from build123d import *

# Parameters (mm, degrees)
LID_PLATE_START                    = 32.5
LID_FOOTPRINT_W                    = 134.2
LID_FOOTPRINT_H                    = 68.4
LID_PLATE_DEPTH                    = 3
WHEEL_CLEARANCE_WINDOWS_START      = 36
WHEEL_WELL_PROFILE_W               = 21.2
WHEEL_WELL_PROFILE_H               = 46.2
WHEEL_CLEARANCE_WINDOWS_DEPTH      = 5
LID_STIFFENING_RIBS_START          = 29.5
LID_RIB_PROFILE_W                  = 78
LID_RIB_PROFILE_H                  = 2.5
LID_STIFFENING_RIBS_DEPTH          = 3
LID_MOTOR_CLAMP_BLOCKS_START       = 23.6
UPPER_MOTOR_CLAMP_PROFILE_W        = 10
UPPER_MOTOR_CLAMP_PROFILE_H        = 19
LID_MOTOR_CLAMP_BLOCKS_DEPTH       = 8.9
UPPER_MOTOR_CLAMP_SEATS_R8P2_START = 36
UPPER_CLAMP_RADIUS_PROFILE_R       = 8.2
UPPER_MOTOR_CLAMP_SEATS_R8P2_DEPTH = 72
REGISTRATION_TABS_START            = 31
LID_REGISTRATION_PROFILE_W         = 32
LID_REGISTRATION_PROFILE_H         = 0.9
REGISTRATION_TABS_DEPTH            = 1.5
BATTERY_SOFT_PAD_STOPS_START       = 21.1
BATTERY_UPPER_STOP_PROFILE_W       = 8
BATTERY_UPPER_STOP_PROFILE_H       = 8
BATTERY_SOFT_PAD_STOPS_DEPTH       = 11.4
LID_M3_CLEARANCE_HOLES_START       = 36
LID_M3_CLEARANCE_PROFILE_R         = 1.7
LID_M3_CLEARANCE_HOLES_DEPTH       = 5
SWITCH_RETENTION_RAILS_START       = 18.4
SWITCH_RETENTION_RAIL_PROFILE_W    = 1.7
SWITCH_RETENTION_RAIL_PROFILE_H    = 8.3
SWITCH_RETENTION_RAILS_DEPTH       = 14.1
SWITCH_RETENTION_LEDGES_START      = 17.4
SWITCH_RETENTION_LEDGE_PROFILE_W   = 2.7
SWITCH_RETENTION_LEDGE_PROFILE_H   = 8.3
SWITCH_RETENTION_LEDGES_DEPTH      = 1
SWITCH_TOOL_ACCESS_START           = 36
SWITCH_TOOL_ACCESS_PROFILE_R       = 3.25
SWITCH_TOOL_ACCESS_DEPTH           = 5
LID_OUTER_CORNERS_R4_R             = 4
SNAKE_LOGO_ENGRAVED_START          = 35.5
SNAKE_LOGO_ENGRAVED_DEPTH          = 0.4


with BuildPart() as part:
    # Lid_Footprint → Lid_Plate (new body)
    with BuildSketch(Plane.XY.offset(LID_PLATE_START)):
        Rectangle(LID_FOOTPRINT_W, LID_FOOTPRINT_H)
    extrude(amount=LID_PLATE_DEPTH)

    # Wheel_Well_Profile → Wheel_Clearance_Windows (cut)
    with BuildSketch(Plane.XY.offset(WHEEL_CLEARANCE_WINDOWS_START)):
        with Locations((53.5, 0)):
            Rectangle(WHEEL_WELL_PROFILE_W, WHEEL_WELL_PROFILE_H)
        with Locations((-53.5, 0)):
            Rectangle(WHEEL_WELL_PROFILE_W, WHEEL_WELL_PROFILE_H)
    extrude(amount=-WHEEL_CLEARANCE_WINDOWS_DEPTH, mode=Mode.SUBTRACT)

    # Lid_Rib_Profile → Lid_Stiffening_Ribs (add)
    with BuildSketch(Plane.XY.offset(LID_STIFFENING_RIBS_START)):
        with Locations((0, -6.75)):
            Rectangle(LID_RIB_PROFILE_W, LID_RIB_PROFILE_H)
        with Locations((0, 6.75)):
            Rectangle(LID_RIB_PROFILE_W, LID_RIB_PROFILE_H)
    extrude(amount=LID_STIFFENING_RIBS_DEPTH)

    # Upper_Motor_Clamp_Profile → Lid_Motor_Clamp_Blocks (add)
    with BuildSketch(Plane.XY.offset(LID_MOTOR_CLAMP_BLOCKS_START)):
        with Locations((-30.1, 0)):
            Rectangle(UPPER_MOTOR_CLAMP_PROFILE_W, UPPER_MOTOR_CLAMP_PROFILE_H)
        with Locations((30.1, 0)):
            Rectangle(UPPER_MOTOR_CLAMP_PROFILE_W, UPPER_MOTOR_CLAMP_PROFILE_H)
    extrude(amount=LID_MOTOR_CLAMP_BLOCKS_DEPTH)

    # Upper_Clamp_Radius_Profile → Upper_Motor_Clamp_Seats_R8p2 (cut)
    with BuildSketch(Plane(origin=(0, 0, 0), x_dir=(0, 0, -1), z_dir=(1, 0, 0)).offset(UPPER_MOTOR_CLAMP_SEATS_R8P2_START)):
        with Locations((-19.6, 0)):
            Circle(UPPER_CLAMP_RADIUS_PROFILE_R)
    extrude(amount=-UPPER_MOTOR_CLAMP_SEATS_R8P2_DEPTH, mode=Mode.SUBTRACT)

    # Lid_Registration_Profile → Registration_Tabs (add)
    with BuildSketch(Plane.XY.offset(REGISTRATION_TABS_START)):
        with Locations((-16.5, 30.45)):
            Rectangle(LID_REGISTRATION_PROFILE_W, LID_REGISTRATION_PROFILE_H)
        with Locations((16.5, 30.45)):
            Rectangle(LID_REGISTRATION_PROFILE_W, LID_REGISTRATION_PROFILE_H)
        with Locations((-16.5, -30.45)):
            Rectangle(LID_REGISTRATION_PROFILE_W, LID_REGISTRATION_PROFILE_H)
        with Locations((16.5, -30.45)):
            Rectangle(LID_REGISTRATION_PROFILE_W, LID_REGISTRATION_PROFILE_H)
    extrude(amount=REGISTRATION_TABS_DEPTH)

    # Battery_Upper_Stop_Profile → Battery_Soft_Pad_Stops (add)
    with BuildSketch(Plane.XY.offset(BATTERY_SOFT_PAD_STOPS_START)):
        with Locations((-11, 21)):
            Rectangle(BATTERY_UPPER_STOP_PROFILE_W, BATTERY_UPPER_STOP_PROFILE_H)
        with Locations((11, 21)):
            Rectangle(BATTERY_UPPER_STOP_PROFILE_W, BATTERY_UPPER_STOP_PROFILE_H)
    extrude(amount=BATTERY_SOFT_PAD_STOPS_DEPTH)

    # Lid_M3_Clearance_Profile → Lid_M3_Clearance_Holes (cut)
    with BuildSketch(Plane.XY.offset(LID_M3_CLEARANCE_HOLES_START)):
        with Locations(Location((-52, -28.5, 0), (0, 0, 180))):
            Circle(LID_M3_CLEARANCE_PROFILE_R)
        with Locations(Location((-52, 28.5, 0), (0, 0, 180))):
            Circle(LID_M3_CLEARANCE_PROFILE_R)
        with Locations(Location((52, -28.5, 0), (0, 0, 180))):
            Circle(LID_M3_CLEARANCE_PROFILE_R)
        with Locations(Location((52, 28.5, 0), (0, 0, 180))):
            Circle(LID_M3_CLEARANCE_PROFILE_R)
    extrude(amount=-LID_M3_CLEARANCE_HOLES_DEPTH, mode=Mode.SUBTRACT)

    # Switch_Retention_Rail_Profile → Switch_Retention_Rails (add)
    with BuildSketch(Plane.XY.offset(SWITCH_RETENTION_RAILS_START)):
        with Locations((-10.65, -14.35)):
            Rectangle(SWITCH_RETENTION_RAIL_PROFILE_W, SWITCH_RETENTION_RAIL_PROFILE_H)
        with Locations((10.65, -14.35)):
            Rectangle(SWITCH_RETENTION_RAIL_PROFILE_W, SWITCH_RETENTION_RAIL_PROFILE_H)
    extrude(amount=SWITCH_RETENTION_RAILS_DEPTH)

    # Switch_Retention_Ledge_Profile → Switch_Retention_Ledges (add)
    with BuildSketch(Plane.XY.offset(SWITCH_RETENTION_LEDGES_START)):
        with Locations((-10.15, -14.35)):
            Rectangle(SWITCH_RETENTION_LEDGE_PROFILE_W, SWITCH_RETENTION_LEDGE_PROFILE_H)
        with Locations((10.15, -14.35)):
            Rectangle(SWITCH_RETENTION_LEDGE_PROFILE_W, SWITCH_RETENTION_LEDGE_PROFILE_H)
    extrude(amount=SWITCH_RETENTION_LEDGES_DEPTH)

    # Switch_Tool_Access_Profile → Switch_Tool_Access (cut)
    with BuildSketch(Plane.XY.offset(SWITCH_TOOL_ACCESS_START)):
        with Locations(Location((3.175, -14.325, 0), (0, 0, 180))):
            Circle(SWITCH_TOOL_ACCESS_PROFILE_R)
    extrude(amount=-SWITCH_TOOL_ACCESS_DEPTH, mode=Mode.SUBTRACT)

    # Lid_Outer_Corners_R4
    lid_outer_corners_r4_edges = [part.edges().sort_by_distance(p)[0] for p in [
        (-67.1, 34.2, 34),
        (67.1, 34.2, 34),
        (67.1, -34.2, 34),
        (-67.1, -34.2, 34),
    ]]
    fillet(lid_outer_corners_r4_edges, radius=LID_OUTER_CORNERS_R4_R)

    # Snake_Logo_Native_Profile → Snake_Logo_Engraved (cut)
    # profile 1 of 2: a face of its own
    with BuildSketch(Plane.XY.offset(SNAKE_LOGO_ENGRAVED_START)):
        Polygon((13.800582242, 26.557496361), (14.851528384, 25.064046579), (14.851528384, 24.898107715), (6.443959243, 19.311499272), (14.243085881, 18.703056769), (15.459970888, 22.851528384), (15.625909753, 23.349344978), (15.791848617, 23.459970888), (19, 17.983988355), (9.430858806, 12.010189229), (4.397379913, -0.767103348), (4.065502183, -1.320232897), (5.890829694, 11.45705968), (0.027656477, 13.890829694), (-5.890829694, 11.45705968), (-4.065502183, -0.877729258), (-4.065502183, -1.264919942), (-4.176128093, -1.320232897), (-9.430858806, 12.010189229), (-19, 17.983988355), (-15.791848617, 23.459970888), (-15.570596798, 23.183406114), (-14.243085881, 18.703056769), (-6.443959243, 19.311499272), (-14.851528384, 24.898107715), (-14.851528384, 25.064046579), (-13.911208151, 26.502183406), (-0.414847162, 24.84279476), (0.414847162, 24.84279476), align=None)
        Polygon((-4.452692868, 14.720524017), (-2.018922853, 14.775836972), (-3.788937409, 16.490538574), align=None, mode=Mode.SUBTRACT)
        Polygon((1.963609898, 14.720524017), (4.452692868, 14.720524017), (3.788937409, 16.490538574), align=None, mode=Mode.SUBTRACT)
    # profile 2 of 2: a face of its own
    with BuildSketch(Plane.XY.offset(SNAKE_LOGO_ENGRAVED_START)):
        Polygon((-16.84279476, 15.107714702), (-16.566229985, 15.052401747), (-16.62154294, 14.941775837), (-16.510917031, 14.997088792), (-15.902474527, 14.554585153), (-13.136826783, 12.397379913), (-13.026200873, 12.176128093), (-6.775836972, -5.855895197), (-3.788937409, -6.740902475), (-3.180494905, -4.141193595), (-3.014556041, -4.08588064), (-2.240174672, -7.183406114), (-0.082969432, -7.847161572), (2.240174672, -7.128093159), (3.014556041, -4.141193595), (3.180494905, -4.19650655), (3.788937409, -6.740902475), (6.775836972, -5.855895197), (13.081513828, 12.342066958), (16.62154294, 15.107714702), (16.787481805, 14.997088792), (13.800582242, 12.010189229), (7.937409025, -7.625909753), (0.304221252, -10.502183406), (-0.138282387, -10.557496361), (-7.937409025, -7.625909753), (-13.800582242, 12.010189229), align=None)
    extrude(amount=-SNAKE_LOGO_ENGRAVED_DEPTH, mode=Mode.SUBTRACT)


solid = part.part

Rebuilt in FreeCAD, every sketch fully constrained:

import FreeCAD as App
import Part
import Sketcher
from FreeCAD import Vector
Q = App.Units.Quantity


def edges_at(feature, points):
    """Names of the edges that pass closest to the given points."""
    edges = feature.Shape.Edges
    near = lambda p: min(range(len(edges)), key=lambda i: edges[i].distToShape(Part.Vertex(*p))[0])
    return sorted({f"Edge{near(p) + 1}" for p in points})


def add_polygon(sketch, points):
    """Adds a closed chain of lines whose ends are joined by coincident constraints."""
    first, n = sketch.GeometryCount, len(points)
    for a, b in zip(points, points[1:] + points[:1]):
        sketch.addGeometry(Part.LineSegment(App.Vector(*a, 0), App.Vector(*b, 0)), False)
    for i in range(n):
        sketch.addConstraint(Sketcher.Constraint("Coincident", first + i, 2, first + (i + 1) % n, 1))

doc = App.newDocument("Part")
body = doc.addObject("PartDesign::Body", "Body")

# Sketch on XY plane
sketch1 = doc.addObject("Sketcher::SketchObject", "Sketch")
body.addObject(sketch1)
sketch1.AttachmentSupport = (doc.XY_Plane, [""])
sketch1.MapMode = "FlatFace"
sketch1.AttachmentOffset = App.Placement(Vector(0, 0, 32.5), App.Rotation())
add_polygon(sketch1, [(-67, 34), (-67, -34), (67, -34), (67, 34)])  # lines 0-3
sketch1.addConstraint(Sketcher.Constraint("Vertical", 0))
sketch1.addConstraint(Sketcher.Constraint("Horizontal", 1))
sketch1.addConstraint(Sketcher.Constraint("Vertical", 2))
sketch1.addConstraint(Sketcher.Constraint("Horizontal", 3))
sketch1.addConstraint(Sketcher.Constraint("Symmetric", 0, 2, 2, 2, -1, 1))
sketch1.addConstraint(Sketcher.Constraint("DistanceX", 1, 1, 1, 2, 134.2))
sketch1.addConstraint(Sketcher.Constraint("DistanceY", 0, 2, 0, 1, 68.4))
pad1 = doc.addObject("PartDesign::Pad", "Pad")
body.addObject(pad1)
pad1.Profile = sketch1
pad1.Length = 3

# Sketch on XY plane
sketch2 = doc.addObject("Sketcher::SketchObject", "Sketch001")
body.addObject(sketch2)
sketch2.AttachmentSupport = (doc.XY_Plane, [""])
sketch2.MapMode = "FlatFace"
sketch2.AttachmentOffset = App.Placement(Vector(0, 0, 36), App.Rotation())
add_polygon(sketch2, [(43, 23), (43, -23), (64, -23), (64, 23)])  # lines 0-3
add_polygon(sketch2, [(-64, 23), (-64, -23), (-43, -23), (-43, 23)])  # lines 4-7
sketch2.addConstraint(Sketcher.Constraint("Vertical", 0))
sketch2.addConstraint(Sketcher.Constraint("Horizontal", 1))
sketch2.addConstraint(Sketcher.Constraint("Vertical", 2))
sketch2.addConstraint(Sketcher.Constraint("Horizontal", 3))
sketch2.addConstraint(Sketcher.Constraint("Vertical", 4))
sketch2.addConstraint(Sketcher.Constraint("Horizontal", 5))
sketch2.addConstraint(Sketcher.Constraint("Vertical", 6))
sketch2.addConstraint(Sketcher.Constraint("Horizontal", 7))
sketch2.addConstraint(Sketcher.Constraint("Symmetric", 2, 2, 4, 2, -1, 1))
sketch2.addConstraint(Sketcher.Constraint("Symmetric", 0, 2, 6, 2, -1, 1))
sketch2.addConstraint(Sketcher.Constraint("Horizontal", 1, 2, 4, 2))
sketch2.addConstraint(Sketcher.Constraint("DistanceX", 1, 1, 1, 2, 21.2))
sketch2.addConstraint(Sketcher.Constraint("DistanceY", 0, 2, 0, 1, 46.2))
sketch2.addConstraint(Sketcher.Constraint("DistanceX", 4, 2, 0, 2, 107.0))
pocket1 = doc.addObject("PartDesign::Pocket", "Pocket")
body.addObject(pocket1)
pocket1.Profile = sketch2
pocket1.Length = 5

# Sketch on XY plane
sketch3 = doc.addObject("Sketcher::SketchObject", "Sketch002")
body.addObject(sketch3)
sketch3.AttachmentSupport = (doc.XY_Plane, [""])
sketch3.MapMode = "FlatFace"
sketch3.AttachmentOffset = App.Placement(Vector(0, 0, 29.5), App.Rotation())
add_polygon(sketch3, [(-39, -5.5), (-39, -8), (39, -8), (39, -5.5)])  # lines 0-3
add_polygon(sketch3, [(-39, 8), (-39, 5.5), (39, 5.5), (39, 8)])  # lines 4-7
sketch3.addConstraint(Sketcher.Constraint("Vertical", 0))
sketch3.addConstraint(Sketcher.Constraint("Horizontal", 1))
sketch3.addConstraint(Sketcher.Constraint("Vertical", 2))
sketch3.addConstraint(Sketcher.Constraint("Horizontal", 3))
sketch3.addConstraint(Sketcher.Constraint("Vertical", 4))
sketch3.addConstraint(Sketcher.Constraint("Horizontal", 5))
sketch3.addConstraint(Sketcher.Constraint("Vertical", 6))
sketch3.addConstraint(Sketcher.Constraint("Horizontal", 7))
sketch3.addConstraint(Sketcher.Constraint("Symmetric", 2, 2, 4, 2, -1, 1))
sketch3.addConstraint(Sketcher.Constraint("Symmetric", 0, 2, 6, 2, -1, 1))
sketch3.addConstraint(Sketcher.Constraint("Vertical", 3, 2, 4, 2))
sketch3.addConstraint(Sketcher.Constraint("DistanceX", 1, 1, 1, 2, 78.0))
sketch3.addConstraint(Sketcher.Constraint("DistanceY", 0, 2, 0, 1, 2.5))
sketch3.addConstraint(Sketcher.Constraint("DistanceY", 0, 2, -1, 1, 8.0))
pad2 = doc.addObject("PartDesign::Pad", "Pad001")
body.addObject(pad2)
pad2.Profile = sketch3
pad2.Length = 3

# Sketch on XY plane
sketch4 = doc.addObject("Sketcher::SketchObject", "Sketch003")
body.addObject(sketch4)
sketch4.AttachmentSupport = (doc.XY_Plane, [""])
sketch4.MapMode = "FlatFace"
sketch4.AttachmentOffset = App.Placement(Vector(0, 0, 23.6), App.Rotation())
add_polygon(sketch4, [(-35, 10), (-35, -10), (-25, -10), (-25, 10)])  # lines 0-3
add_polygon(sketch4, [(25, 10), (25, -10), (35, -10), (35, 10)])  # lines 4-7
sketch4.addConstraint(Sketcher.Constraint("Vertical", 0))
sketch4.addConstraint(Sketcher.Constraint("Horizontal", 1))
sketch4.addConstraint(Sketcher.Constraint("Vertical", 2))
sketch4.addConstraint(Sketcher.Constraint("Horizontal", 3))
sketch4.addConstraint(Sketcher.Constraint("Vertical", 4))
sketch4.addConstraint(Sketcher.Constraint("Horizontal", 5))
sketch4.addConstraint(Sketcher.Constraint("Vertical", 6))
sketch4.addConstraint(Sketcher.Constraint("Horizontal", 7))
sketch4.addConstraint(Sketcher.Constraint("Symmetric", 2, 2, 4, 2, -1, 1))
sketch4.addConstraint(Sketcher.Constraint("Symmetric", 0, 2, 6, 2, -1, 1))
sketch4.addConstraint(Sketcher.Constraint("Horizontal", 1, 2, 4, 2))
sketch4.addConstraint(Sketcher.Constraint("DistanceX", 1, 1, 1, 2, 10.0))
sketch4.addConstraint(Sketcher.Constraint("DistanceY", 0, 2, 0, 1, 19.0))
sketch4.addConstraint(Sketcher.Constraint("DistanceX", 0, 2, -1, 1, 35.1))
pad3 = doc.addObject("PartDesign::Pad", "Pad002")
body.addObject(pad3)
pad3.Profile = sketch4
pad3.Length = 8.9

# Sketch on YZ plane
sketch5 = doc.addObject("Sketcher::SketchObject", "Sketch004")
body.addObject(sketch5)
sketch5.AttachmentSupport = (doc.YZ_Plane, [""])
sketch5.MapMode = "FlatFace"
sketch5.AttachmentOffset = App.Placement(Vector(0, 0, 36), App.Rotation())
sketch5.addGeometry(Part.Circle(Vector(0, 20, 0), Vector(0, 0, 1), 8), False)
sketch5.addConstraint(Sketcher.Constraint("PointOnObject", 0, 3, -2))
sketch5.addConstraint(Sketcher.Constraint("Diameter", 0, 16.4))
sketch5.addConstraint(Sketcher.Constraint("DistanceY", -1, 1, 0, 3, 19.6))
pocket2 = doc.addObject("PartDesign::Pocket", "Pocket001")
body.addObject(pocket2)
pocket2.Profile = sketch5
pocket2.Length = 72

# Sketch on XY plane
sketch6 = doc.addObject("Sketcher::SketchObject", "Sketch005")
body.addObject(sketch6)
sketch6.AttachmentSupport = (doc.XY_Plane, [""])
sketch6.MapMode = "FlatFace"
sketch6.AttachmentOffset = App.Placement(Vector(0, 0, 31), App.Rotation())
add_polygon(sketch6, [(-32.5, 30.9), (-32.5, 30), (-0.5, 30), (-0.5, 30.9)])  # lines 0-3
add_polygon(sketch6, [(0.5, 30.9), (0.5, 30), (32.5, 30), (32.5, 30.9)])  # lines 4-7
add_polygon(sketch6, [(-32.5, -30), (-32.5, -30.9), (-0.5, -30.9), (-0.5, -30)])  # lines 8-11
add_polygon(sketch6, [(0.5, -30), (0.5, -30.9), (32.5, -30.9), (32.5, -30)])  # lines 12-15
sketch6.addConstraint(Sketcher.Constraint("Vertical", 0))
sketch6.addConstraint(Sketcher.Constraint("Horizontal", 1))
sketch6.addConstraint(Sketcher.Constraint("Vertical", 2))
sketch6.addConstraint(Sketcher.Constraint("Horizontal", 3))
sketch6.addConstraint(Sketcher.Constraint("Vertical", 4))
sketch6.addConstraint(Sketcher.Constraint("Horizontal", 5))
sketch6.addConstraint(Sketcher.Constraint("Vertical", 6))
sketch6.addConstraint(Sketcher.Constraint("Horizontal", 7))
sketch6.addConstraint(Sketcher.Constraint("Vertical", 8))
sketch6.addConstraint(Sketcher.Constraint("Horizontal", 9))
sketch6.addConstraint(Sketcher.Constraint("Vertical", 10))
sketch6.addConstraint(Sketcher.Constraint("Horizontal", 11))
sketch6.addConstraint(Sketcher.Constraint("Vertical", 12))
sketch6.addConstraint(Sketcher.Constraint("Horizontal", 13))
sketch6.addConstraint(Sketcher.Constraint("Vertical", 14))
sketch6.addConstraint(Sketcher.Constraint("Horizontal", 15))
sketch6.addConstraint(Sketcher.Constraint("Symmetric", 6, 2, 8, 2, -1, 1))
sketch6.addConstraint(Sketcher.Constraint("Symmetric", 4, 2, 10, 2, -1, 1))
sketch6.addConstraint(Sketcher.Constraint("Symmetric", 2, 2, 12, 2, -1, 1))
sketch6.addConstraint(Sketcher.Constraint("Symmetric", 0, 2, 14, 2, -1, 1))
sketch6.addConstraint(Sketcher.Constraint("Symmetric", 1, 2, 4, 2, -2))
sketch6.addConstraint(Sketcher.Constraint("Symmetric", 3, 2, 6, 2, -2))
sketch6.addConstraint(Sketcher.Constraint("DistanceX", 1, 1, 1, 2, 32.0))
sketch6.addConstraint(Sketcher.Constraint("DistanceY", 0, 2, 0, 1, 0.9))
sketch6.addConstraint(Sketcher.Constraint("DistanceY", -1, 1, 0, 2, 30.0))
sketch6.addConstraint(Sketcher.Constraint("DistanceX", 1, 2, 4, 2, 1.0))
pad4 = doc.addObject("PartDesign::Pad", "Pad003")
body.addObject(pad4)
pad4.Profile = sketch6
pad4.Length = 1.5

# Sketch on XY plane
sketch7 = doc.addObject("Sketcher::SketchObject", "Sketch006")
body.addObject(sketch7)
sketch7.AttachmentSupport = (doc.XY_Plane, [""])
sketch7.MapMode = "FlatFace"
sketch7.AttachmentOffset = App.Placement(Vector(0, 0, 21.1), App.Rotation())
add_polygon(sketch7, [(-15, 25), (-15, 17), (-7, 17), (-7, 25)])  # lines 0-3
add_polygon(sketch7, [(7, 25), (7, 17), (15, 17), (15, 25)])  # lines 4-7
sketch7.addConstraint(Sketcher.Constraint("Vertical", 0))
sketch7.addConstraint(Sketcher.Constraint("Horizontal", 1))
sketch7.addConstraint(Sketcher.Constraint("Vertical", 2))
sketch7.addConstraint(Sketcher.Constraint("Horizontal", 3))
sketch7.addConstraint(Sketcher.Constraint("Vertical", 4))
sketch7.addConstraint(Sketcher.Constraint("Horizontal", 5))
sketch7.addConstraint(Sketcher.Constraint("Vertical", 6))
sketch7.addConstraint(Sketcher.Constraint("Horizontal", 7))
sketch7.addConstraint(Sketcher.Constraint("Symmetric", 1, 2, 4, 2, -2))
sketch7.addConstraint(Sketcher.Constraint("Symmetric", 3, 2, 6, 2, -2))
sketch7.addConstraint(Sketcher.Constraint("Equal", 7, 0))
sketch7.addConstraint(Sketcher.Constraint("DistanceX", 1, 1, 1, 2, 8.0))
sketch7.addConstraint(Sketcher.Constraint("DistanceX", 0, 2, -1, 1, 15.0))
sketch7.addConstraint(Sketcher.Constraint("DistanceY", -1, 1, 0, 2, 17.0))
pad5 = doc.addObject("PartDesign::Pad", "Pad004")
body.addObject(pad5)
pad5.Profile = sketch7
pad5.Length = 11.4

# Sketch on XY plane
sketch8 = doc.addObject("Sketcher::SketchObject", "Sketch007")
body.addObject(sketch8)
sketch8.AttachmentSupport = (doc.XY_Plane, [""])
sketch8.MapMode = "FlatFace"
sketch8.AttachmentOffset = App.Placement(Vector(0, 0, 36), App.Rotation())
sketch8.addGeometry(Part.Circle(Vector(-52, -28.5, 0), Vector(0, 0, 1), 1.7), False)
sketch8.addGeometry(Part.Circle(Vector(-52, 28.5, 0), Vector(0, 0, 1), 1.7), False)
sketch8.addGeometry(Part.Circle(Vector(52, -28.5, 0), Vector(0, 0, 1), 1.7), False)
sketch8.addGeometry(Part.Circle(Vector(52, 28.5, 0), Vector(0, 0, 1), 1.7), False)
sketch8.addConstraint(Sketcher.Constraint("Equal", 0, 1))
sketch8.addConstraint(Sketcher.Constraint("Equal", 1, 2))
sketch8.addConstraint(Sketcher.Constraint("Equal", 2, 3))
sketch8.addConstraint(Sketcher.Constraint("Symmetric", 1, 3, 2, 3, -1, 1))
sketch8.addConstraint(Sketcher.Constraint("Symmetric", 0, 3, 3, 3, -1, 1))
sketch8.addConstraint(Sketcher.Constraint("Symmetric", 0, 3, 2, 3, -2))
sketch8.addConstraint(Sketcher.Constraint("Diameter", 0, 3.4))
sketch8.addConstraint(Sketcher.Constraint("DistanceX", 0, 3, -1, 1, 52.0))
sketch8.addConstraint(Sketcher.Constraint("DistanceY", 0, 3, 1, 3, 57.0))
pocket3 = doc.addObject("PartDesign::Pocket", "Pocket002")
body.addObject(pocket3)
pocket3.Profile = sketch8
pocket3.Length = 5

# Sketch on XY plane
sketch9 = doc.addObject("Sketcher::SketchObject", "Sketch008")
body.addObject(sketch9)
sketch9.AttachmentSupport = (doc.XY_Plane, [""])
sketch9.MapMode = "FlatFace"
sketch9.AttachmentOffset = App.Placement(Vector(0, 0, 18.4), App.Rotation())
add_polygon(sketch9, [(-11.5, -10.2), (-11.5, -18.5), (-9.8, -18.5), (-9.8, -10.2)])  # lines 0-3
add_polygon(sketch9, [(9.8, -10.2), (9.8, -18.5), (11.5, -18.5), (11.5, -10.2)])  # lines 4-7
sketch9.addConstraint(Sketcher.Constraint("Vertical", 0))
sketch9.addConstraint(Sketcher.Constraint("Horizontal", 1))
sketch9.addConstraint(Sketcher.Constraint("Vertical", 2))
sketch9.addConstraint(Sketcher.Constraint("Horizontal", 3))
sketch9.addConstraint(Sketcher.Constraint("Vertical", 4))
sketch9.addConstraint(Sketcher.Constraint("Horizontal", 5))
sketch9.addConstraint(Sketcher.Constraint("Vertical", 6))
sketch9.addConstraint(Sketcher.Constraint("Horizontal", 7))
sketch9.addConstraint(Sketcher.Constraint("Symmetric", 1, 2, 4, 2, -2))
sketch9.addConstraint(Sketcher.Constraint("Symmetric", 3, 2, 6, 2, -2))
sketch9.addConstraint(Sketcher.Constraint("DistanceX", 1, 1, 1, 2, 1.7))
sketch9.addConstraint(Sketcher.Constraint("DistanceY", 0, 2, 0, 1, 8.3))
sketch9.addConstraint(Sketcher.Constraint("DistanceX", 0, 2, 5, 2, 23.0))
sketch9.addConstraint(Sketcher.Constraint("DistanceY", 0, 2, -1, 1, 18.5))
pad6 = doc.addObject("PartDesign::Pad", "Pad005")
body.addObject(pad6)
pad6.Profile = sketch9
pad6.Length = 14.1

# Sketch on XY plane
sketch10 = doc.addObject("Sketcher::SketchObject", "Sketch009")
body.addObject(sketch10)
sketch10.AttachmentSupport = (doc.XY_Plane, [""])
sketch10.MapMode = "FlatFace"
sketch10.AttachmentOffset = App.Placement(Vector(0, 0, 17.4), App.Rotation())
add_polygon(sketch10, [(-11.5, -10.2), (-11.5, -18.5), (-8.8, -18.5), (-8.8, -10.2)])  # lines 0-3
add_polygon(sketch10, [(8.8, -10.2), (8.8, -18.5), (11.5, -18.5), (11.5, -10.2)])  # lines 4-7
sketch10.addConstraint(Sketcher.Constraint("Vertical", 0))
sketch10.addConstraint(Sketcher.Constraint("Horizontal", 1))
sketch10.addConstraint(Sketcher.Constraint("Vertical", 2))
sketch10.addConstraint(Sketcher.Constraint("Horizontal", 3))
sketch10.addConstraint(Sketcher.Constraint("Vertical", 4))
sketch10.addConstraint(Sketcher.Constraint("Horizontal", 5))
sketch10.addConstraint(Sketcher.Constraint("Vertical", 6))
sketch10.addConstraint(Sketcher.Constraint("Horizontal", 7))
sketch10.addConstraint(Sketcher.Constraint("Symmetric", 1, 2, 4, 2, -2))
sketch10.addConstraint(Sketcher.Constraint("Symmetric", 3, 2, 6, 2, -2))
sketch10.addConstraint(Sketcher.Constraint("DistanceX", 1, 1, 1, 2, 2.7))
sketch10.addConstraint(Sketcher.Constraint("DistanceY", 0, 2, 0, 1, 8.3))
sketch10.addConstraint(Sketcher.Constraint("DistanceX", 0, 2, 5, 2, 23.0))
sketch10.addConstraint(Sketcher.Constraint("DistanceY", 0, 2, -1, 1, 18.5))
pad7 = doc.addObject("PartDesign::Pad", "Pad006")
body.addObject(pad7)
pad7.Profile = sketch10
pad7.Length = 1

# Sketch on XY plane
sketch11 = doc.addObject("Sketcher::SketchObject", "Sketch010")
body.addObject(sketch11)
sketch11.AttachmentSupport = (doc.XY_Plane, [""])
sketch11.MapMode = "FlatFace"
sketch11.AttachmentOffset = App.Placement(Vector(0, 0, 36), App.Rotation())
sketch11.addGeometry(Part.Circle(Vector(3.2, -14.3, 0), Vector(0, 0, 1), 3.2), False)
sketch11.addConstraint(Sketcher.Constraint("Diameter", 0, 6.5))
sketch11.addConstraint(Sketcher.Constraint("DistanceX", -1, 1, 0, 3, 3.175))
sketch11.addConstraint(Sketcher.Constraint("DistanceY", 0, 3, -1, 1, 14.325))
pocket4 = doc.addObject("PartDesign::Pocket", "Pocket003")
body.addObject(pocket4)
pocket4.Profile = sketch11
pocket4.Length = 5
doc.recompute()

fillet = doc.addObject("PartDesign::Fillet", "Fillet")
body.addObject(fillet)
fillet.Base = (pocket4, edges_at(pocket4, [
    (-67.1, 34.2, 34),
    (67.1, 34.2, 34),
    (67.1, -34.2, 34),
    (-67.1, -34.2, 34),
]))
fillet.Radius = 4

# Sketch on XY plane
sketch12 = doc.addObject("Sketcher::SketchObject", "Sketch011")
body.addObject(sketch12)
sketch12.AttachmentSupport = (doc.XY_Plane, [""])
sketch12.MapMode = "FlatFace"
sketch12.AttachmentOffset = App.Placement(Vector(0, 0, 35.5), App.Rotation())
add_polygon(sketch12, [(14.851528, 25.064047), (13.800582, 26.557496), (0.414847, 24.842795), (-0.414847, 24.842795), (-13.911208, 26.502183), (-14.851528, 25.064047), (-14.851528, 24.898108), (-6.443959, 19.311499), (-14.243086, 18.703057), (-15.570597, 23.183406), (-15.791849, 23.459971), (-19, 17.983988), (-9.430859, 12.010189), (-4.176128, -1.320233), (-4.065502, -1.26492), (-4.065502, -0.877729), (-5.89083, 11.45706), (0.027656, 13.89083), (5.89083, 11.45706), (4.065502, -1.320233), (4.39738, -0.767103), (9.430859, 12.010189), (19, 17.983988), (15.791849, 23.459971), (15.62591, 23.349345), (15.459971, 22.851528), (14.243086, 18.703057), (6.443959, 19.311499), (14.851528, 24.898108)])  # lines 0-28
add_polygon(sketch12, [(1.96361, 14.720524), (3.788937, 16.490539), (4.452693, 14.720524)])  # lines 29-31
add_polygon(sketch12, [(-4.452693, 14.720524), (-3.788937, 16.490539), (-2.018923, 14.775837)])  # lines 32-34
add_polygon(sketch12, [(-16.56623, 15.052402), (-16.842795, 15.107715), (-13.800582, 12.010189), (-7.937409, -7.62591), (-0.138282, -10.557496), (0.304221, -10.502183), (7.937409, -7.62591), (13.800582, 12.010189), (16.787482, 14.997089), (16.621543, 15.107715), (13.081514, 12.342067), (6.775837, -5.855895), (3.788937, -6.740902), (3.180495, -4.196507), (3.014556, -4.141194), (2.240175, -7.128093), (-0.082969, -7.847162), (-2.240175, -7.183406), (-3.014556, -4.085881), (-3.180495, -4.141194), (-3.788937, -6.740902), (-6.775837, -5.855895), (-13.026201, 12.176128), (-13.136827, 12.39738), (-15.902475, 14.554585), (-16.510917, 14.997089), (-16.621543, 14.941776)])  # lines 35-61
sketch12.addConstraint(Sketcher.Constraint("Horizontal", 2))
sketch12.addConstraint(Sketcher.Constraint("Vertical", 5))
sketch12.addConstraint(Sketcher.Constraint("Vertical", 14))
sketch12.addConstraint(Sketcher.Constraint("Vertical", 28))
sketch12.addConstraint(Sketcher.Constraint("Horizontal", 31))
sketch12.addConstraint(Sketcher.Constraint("Symmetric", 15, 2, 17, 2, -2))
sketch12.addConstraint(Sketcher.Constraint("Symmetric", 11, 2, 20, 2, -2))
sketch12.addConstraint(Sketcher.Constraint("Symmetric", 10, 2, 21, 2, -2))
sketch12.addConstraint(Sketcher.Constraint("Symmetric", 9, 2, 22, 2, -2))
sketch12.addConstraint(Sketcher.Constraint("Symmetric", 7, 2, 25, 2, -2))
sketch12.addConstraint(Sketcher.Constraint("Symmetric", 6, 2, 26, 2, -2))
sketch12.addConstraint(Sketcher.Constraint("Symmetric", 5, 2, 27, 2, -2))
sketch12.addConstraint(Sketcher.Constraint("Symmetric", 29, 2, 32, 2, -2))
sketch12.addConstraint(Sketcher.Constraint("Symmetric", 30, 2, 34, 2, -2))
sketch12.addConstraint(Sketcher.Constraint("Symmetric", 37, 2, 40, 2, -2))
sketch12.addConstraint(Sketcher.Constraint("Symmetric", 36, 2, 41, 2, -2))
sketch12.addConstraint(Sketcher.Constraint("Symmetric", 46, 2, 54, 2, -2))
sketch12.addConstraint(Sketcher.Constraint("Symmetric", 45, 2, 55, 2, -2))
sketch12.addConstraint(Sketcher.Constraint("Perpendicular", 8, 46))
sketch12.addConstraint(Sketcher.Constraint("Perpendicular", 24, 48))
sketch12.addConstraint(Sketcher.Constraint("Perpendicular", 13, 57))
sketch12.addConstraint(Sketcher.Constraint("Perpendicular", 57, 60))
sketch12.addConstraint(Sketcher.Constraint("Horizontal", 12, 2, 18, 2))
sketch12.addConstraint(Sketcher.Constraint("Horizontal", 4, 2, 28, 2))
sketch12.addConstraint(Sketcher.Constraint("Horizontal", 20, 2, 36, 2))
sketch12.addConstraint(Sketcher.Constraint("Horizontal", 35, 2, 43, 2))
sketch12.addConstraint(Sketcher.Constraint("Horizontal", 48, 2, 53, 2))
sketch12.addConstraint(Sketcher.Constraint("Horizontal", 42, 2, 59, 2))
sketch12.addConstraint(Sketcher.Constraint("Vertical", 0, 2, 41, 2))
sketch12.addConstraint(Sketcher.Constraint("Vertical", 29, 2, 46, 2))
sketch12.addConstraint(Sketcher.Constraint("Equal", 23, 43))
sketch12.addConstraint(Sketcher.Constraint("Equal", 48, 53))
sketch12.addConstraint(Sketcher.Constraint("Equal", 13, 60))
sketch12.addConstraint(Sketcher.Constraint("Equal", 60, 61))
sketch12.addConstraint(Sketcher.Constraint("Angle", 42, Q("45 deg")))
sketch12.addConstraint(Sketcher.Constraint("DistanceX", 10, 2, -1, 1, 19.0))
sketch12.addConstraint(Sketcher.Constraint("Distance", 34, 2.434398))
sketch12.addConstraint(Sketcher.Constraint("Distance", 38, 8.331901))
sketch12.addConstraint(Sketcher.Constraint("DistanceY", 5, 2, 5, 1, 0.165939))
sketch12.addConstraint(Sketcher.Constraint("DistanceY", 14, 1, 14, 2, 0.387191))
sketch12.addConstraint(Sketcher.Constraint("DistanceY", -1, 1, 6, 2, 19.311499))
sketch12.addConstraint(Sketcher.Constraint("DistanceX", 56, 2, -1, 1, 13.026201))
sketch12.addConstraint(Sketcher.Constraint("DistanceY", -1, 1, 61, 2, 15.052402))
sketch12.addConstraint(Sketcher.Constraint("Distance", 3, 13.59799))
sketch12.addConstraint(Sketcher.Constraint("Distance", 8, 4.672881))
sketch12.addConstraint(Sketcher.Constraint("Distance", 17, 6.348231))
sketch12.addConstraint(Sketcher.Constraint("Distance", 29, 2.542592))
sketch12.addConstraint(Sketcher.Constraint("Distance", 35, 0.282042))
sketch12.addConstraint(Sketcher.Constraint("Distance", 37, 20.492759))
sketch12.addConstraint(Sketcher.Constraint("Distance", 49, 3.08565))
sketch12.addConstraint(Sketcher.Constraint("Distance", 54, 2.66996))
sketch12.addConstraint(Sketcher.Constraint("Distance", 58, 3.507469))
sketch12.addConstraint(Sketcher.Constraint("DistanceX", 2, 2, 2, 1, 0.829694))
sketch12.addConstraint(Sketcher.Constraint("DistanceX", 31, 2, 31, 1, 2.489083))
sketch12.addConstraint(Sketcher.Constraint("DistanceX", 3, 2, -1, 1, 13.911208))
sketch12.addConstraint(Sketcher.Constraint("DistanceX", 4, 2, -1, 1, 14.851528))
sketch12.addConstraint(Sketcher.Constraint("DistanceX", 6, 2, -1, 1, 6.443959))
sketch12.addConstraint(Sketcher.Constraint("DistanceX", 9, 2, -1, 1, 15.791849))
sketch12.addConstraint(Sketcher.Constraint("DistanceY", -1, 1, 9, 2, 23.459971))
sketch12.addConstraint(Sketcher.Constraint("DistanceY", -1, 1, 10, 2, 17.983988))
sketch12.addConstraint(Sketcher.Constraint("DistanceX", 11, 2, -1, 1, 9.430859))
sketch12.addConstraint(Sketcher.Constraint("DistanceY", -1, 1, 11, 2, 12.010189))
sketch12.addConstraint(Sketcher.Constraint("DistanceX", 12, 2, -1, 1, 4.176128))
sketch12.addConstraint(Sketcher.Constraint("DistanceY", 13, 2, -1, 1, 1.26492))
sketch12.addConstraint(Sketcher.Constraint("DistanceX", 15, 2, -1, 1, 5.89083))
sketch12.addConstraint(Sketcher.Constraint("DistanceY", -1, 1, 15, 2, 11.45706))
sketch12.addConstraint(Sketcher.Constraint("DistanceY", -1, 1, 16, 2, 13.89083))
sketch12.addConstraint(Sketcher.Constraint("DistanceX", -1, 1, 19, 2, 4.39738))
sketch12.addConstraint(Sketcher.Constraint("DistanceX", -1, 1, 23, 2, 15.62591))
sketch12.addConstraint(Sketcher.Constraint("DistanceX", -1, 1, 24, 2, 15.459971))
sketch12.addConstraint(Sketcher.Constraint("DistanceY", -1, 1, 24, 2, 22.851528))
sketch12.addConstraint(Sketcher.Constraint("DistanceY", -1, 1, 29, 2, 16.490539))
sketch12.addConstraint(Sketcher.Constraint("DistanceX", -1, 1, 31, 2, 1.96361))
sketch12.addConstraint(Sketcher.Constraint("DistanceX", 37, 2, -1, 1, 7.937409))
sketch12.addConstraint(Sketcher.Constraint("DistanceY", 37, 2, -1, 1, 7.62591))
sketch12.addConstraint(Sketcher.Constraint("DistanceX", -1, 1, 39, 2, 0.304221))
sketch12.addConstraint(Sketcher.Constraint("DistanceX", -1, 1, 42, 2, 16.787482))
sketch12.addConstraint(Sketcher.Constraint("DistanceX", 50, 2, -1, 1, 0.082969))
sketch12.addConstraint(Sketcher.Constraint("DistanceY", 50, 2, -1, 1, 7.847162))
sketch12.addConstraint(Sketcher.Constraint("DistanceY", 52, 2, -1, 1, 4.085881))
sketch12.addConstraint(Sketcher.Constraint("DistanceY", -1, 1, 56, 2, 12.176128))
sketch12.addConstraint(Sketcher.Constraint("DistanceY", -1, 1, 57, 2, 12.39738))
sketch12.addConstraint(Sketcher.Constraint("DistanceX", 61, 2, -1, 1, 16.56623))
sketch12.addConstraint(Sketcher.Constraint("Distance", 0, 1.826165))
sketch12.addConstraint(Sketcher.Constraint("Distance", 1, 13.495114))
sketch12.addConstraint(Sketcher.Constraint("Distance", 4, 1.718266))
sketch12.addConstraint(Sketcher.Constraint("Distance", 6, 10.094425))
sketch12.addConstraint(Sketcher.Constraint("Distance", 7, 7.822824))
sketch12.addConstraint(Sketcher.Constraint("Distance", 9, 0.354176))
sketch12.addConstraint(Sketcher.Constraint("Distance", 12, 14.328725))
sketch12.addConstraint(Sketcher.Constraint("Distance", 13, 0.123684))
sketch12.addConstraint(Sketcher.Constraint("Distance", 18, 12.907015))
sketch12.addConstraint(Sketcher.Constraint("Distance", 19, 0.645054))
sketch12.addConstraint(Sketcher.Constraint("Distance", 23, 0.199434))
sketch12.addConstraint(Sketcher.Constraint("Distance", 25, 4.323266))
sketch12.addConstraint(Sketcher.Constraint("Distance", 30, 1.890376))
sketch12.addConstraint(Sketcher.Constraint("Distance", 33, 2.464377))
sketch12.addConstraint(Sketcher.Constraint("Distance", 36, 4.341627))
sketch12.addConstraint(Sketcher.Constraint("Distance", 39, 0.445947))
sketch12.addConstraint(Sketcher.Constraint("Distance", 40, 8.157114))
sketch12.addConstraint(Sketcher.Constraint("Distance", 44, 4.492284))
sketch12.addConstraint(Sketcher.Constraint("Distance", 45, 19.259475))
sketch12.addConstraint(Sketcher.Constraint("Distance", 46, 3.115254))
sketch12.addConstraint(Sketcher.Constraint("Distance", 47, 2.616133))
sketch12.addConstraint(Sketcher.Constraint("Distance", 48, 0.174915))
sketch12.addConstraint(Sketcher.Constraint("Distance", 50, 2.431884))
sketch12.addConstraint(Sketcher.Constraint("Distance", 51, 2.257013))
sketch12.addConstraint(Sketcher.Constraint("Distance", 52, 3.192856))
sketch12.addConstraint(Sketcher.Constraint("Distance", 56, 19.084573))
sketch12.addConstraint(Sketcher.Constraint("Distance", 59, 0.752338))
sketch12.addConstraint(Sketcher.Constraint("DistanceX", -1, 1, 47, 2, 3.180495))
pocket5 = doc.addObject("PartDesign::Pocket", "Pocket004")
body.addObject(pocket5)
pocket5.Profile = sketch12
pocket5.Length = 0.4

doc.recompute()
